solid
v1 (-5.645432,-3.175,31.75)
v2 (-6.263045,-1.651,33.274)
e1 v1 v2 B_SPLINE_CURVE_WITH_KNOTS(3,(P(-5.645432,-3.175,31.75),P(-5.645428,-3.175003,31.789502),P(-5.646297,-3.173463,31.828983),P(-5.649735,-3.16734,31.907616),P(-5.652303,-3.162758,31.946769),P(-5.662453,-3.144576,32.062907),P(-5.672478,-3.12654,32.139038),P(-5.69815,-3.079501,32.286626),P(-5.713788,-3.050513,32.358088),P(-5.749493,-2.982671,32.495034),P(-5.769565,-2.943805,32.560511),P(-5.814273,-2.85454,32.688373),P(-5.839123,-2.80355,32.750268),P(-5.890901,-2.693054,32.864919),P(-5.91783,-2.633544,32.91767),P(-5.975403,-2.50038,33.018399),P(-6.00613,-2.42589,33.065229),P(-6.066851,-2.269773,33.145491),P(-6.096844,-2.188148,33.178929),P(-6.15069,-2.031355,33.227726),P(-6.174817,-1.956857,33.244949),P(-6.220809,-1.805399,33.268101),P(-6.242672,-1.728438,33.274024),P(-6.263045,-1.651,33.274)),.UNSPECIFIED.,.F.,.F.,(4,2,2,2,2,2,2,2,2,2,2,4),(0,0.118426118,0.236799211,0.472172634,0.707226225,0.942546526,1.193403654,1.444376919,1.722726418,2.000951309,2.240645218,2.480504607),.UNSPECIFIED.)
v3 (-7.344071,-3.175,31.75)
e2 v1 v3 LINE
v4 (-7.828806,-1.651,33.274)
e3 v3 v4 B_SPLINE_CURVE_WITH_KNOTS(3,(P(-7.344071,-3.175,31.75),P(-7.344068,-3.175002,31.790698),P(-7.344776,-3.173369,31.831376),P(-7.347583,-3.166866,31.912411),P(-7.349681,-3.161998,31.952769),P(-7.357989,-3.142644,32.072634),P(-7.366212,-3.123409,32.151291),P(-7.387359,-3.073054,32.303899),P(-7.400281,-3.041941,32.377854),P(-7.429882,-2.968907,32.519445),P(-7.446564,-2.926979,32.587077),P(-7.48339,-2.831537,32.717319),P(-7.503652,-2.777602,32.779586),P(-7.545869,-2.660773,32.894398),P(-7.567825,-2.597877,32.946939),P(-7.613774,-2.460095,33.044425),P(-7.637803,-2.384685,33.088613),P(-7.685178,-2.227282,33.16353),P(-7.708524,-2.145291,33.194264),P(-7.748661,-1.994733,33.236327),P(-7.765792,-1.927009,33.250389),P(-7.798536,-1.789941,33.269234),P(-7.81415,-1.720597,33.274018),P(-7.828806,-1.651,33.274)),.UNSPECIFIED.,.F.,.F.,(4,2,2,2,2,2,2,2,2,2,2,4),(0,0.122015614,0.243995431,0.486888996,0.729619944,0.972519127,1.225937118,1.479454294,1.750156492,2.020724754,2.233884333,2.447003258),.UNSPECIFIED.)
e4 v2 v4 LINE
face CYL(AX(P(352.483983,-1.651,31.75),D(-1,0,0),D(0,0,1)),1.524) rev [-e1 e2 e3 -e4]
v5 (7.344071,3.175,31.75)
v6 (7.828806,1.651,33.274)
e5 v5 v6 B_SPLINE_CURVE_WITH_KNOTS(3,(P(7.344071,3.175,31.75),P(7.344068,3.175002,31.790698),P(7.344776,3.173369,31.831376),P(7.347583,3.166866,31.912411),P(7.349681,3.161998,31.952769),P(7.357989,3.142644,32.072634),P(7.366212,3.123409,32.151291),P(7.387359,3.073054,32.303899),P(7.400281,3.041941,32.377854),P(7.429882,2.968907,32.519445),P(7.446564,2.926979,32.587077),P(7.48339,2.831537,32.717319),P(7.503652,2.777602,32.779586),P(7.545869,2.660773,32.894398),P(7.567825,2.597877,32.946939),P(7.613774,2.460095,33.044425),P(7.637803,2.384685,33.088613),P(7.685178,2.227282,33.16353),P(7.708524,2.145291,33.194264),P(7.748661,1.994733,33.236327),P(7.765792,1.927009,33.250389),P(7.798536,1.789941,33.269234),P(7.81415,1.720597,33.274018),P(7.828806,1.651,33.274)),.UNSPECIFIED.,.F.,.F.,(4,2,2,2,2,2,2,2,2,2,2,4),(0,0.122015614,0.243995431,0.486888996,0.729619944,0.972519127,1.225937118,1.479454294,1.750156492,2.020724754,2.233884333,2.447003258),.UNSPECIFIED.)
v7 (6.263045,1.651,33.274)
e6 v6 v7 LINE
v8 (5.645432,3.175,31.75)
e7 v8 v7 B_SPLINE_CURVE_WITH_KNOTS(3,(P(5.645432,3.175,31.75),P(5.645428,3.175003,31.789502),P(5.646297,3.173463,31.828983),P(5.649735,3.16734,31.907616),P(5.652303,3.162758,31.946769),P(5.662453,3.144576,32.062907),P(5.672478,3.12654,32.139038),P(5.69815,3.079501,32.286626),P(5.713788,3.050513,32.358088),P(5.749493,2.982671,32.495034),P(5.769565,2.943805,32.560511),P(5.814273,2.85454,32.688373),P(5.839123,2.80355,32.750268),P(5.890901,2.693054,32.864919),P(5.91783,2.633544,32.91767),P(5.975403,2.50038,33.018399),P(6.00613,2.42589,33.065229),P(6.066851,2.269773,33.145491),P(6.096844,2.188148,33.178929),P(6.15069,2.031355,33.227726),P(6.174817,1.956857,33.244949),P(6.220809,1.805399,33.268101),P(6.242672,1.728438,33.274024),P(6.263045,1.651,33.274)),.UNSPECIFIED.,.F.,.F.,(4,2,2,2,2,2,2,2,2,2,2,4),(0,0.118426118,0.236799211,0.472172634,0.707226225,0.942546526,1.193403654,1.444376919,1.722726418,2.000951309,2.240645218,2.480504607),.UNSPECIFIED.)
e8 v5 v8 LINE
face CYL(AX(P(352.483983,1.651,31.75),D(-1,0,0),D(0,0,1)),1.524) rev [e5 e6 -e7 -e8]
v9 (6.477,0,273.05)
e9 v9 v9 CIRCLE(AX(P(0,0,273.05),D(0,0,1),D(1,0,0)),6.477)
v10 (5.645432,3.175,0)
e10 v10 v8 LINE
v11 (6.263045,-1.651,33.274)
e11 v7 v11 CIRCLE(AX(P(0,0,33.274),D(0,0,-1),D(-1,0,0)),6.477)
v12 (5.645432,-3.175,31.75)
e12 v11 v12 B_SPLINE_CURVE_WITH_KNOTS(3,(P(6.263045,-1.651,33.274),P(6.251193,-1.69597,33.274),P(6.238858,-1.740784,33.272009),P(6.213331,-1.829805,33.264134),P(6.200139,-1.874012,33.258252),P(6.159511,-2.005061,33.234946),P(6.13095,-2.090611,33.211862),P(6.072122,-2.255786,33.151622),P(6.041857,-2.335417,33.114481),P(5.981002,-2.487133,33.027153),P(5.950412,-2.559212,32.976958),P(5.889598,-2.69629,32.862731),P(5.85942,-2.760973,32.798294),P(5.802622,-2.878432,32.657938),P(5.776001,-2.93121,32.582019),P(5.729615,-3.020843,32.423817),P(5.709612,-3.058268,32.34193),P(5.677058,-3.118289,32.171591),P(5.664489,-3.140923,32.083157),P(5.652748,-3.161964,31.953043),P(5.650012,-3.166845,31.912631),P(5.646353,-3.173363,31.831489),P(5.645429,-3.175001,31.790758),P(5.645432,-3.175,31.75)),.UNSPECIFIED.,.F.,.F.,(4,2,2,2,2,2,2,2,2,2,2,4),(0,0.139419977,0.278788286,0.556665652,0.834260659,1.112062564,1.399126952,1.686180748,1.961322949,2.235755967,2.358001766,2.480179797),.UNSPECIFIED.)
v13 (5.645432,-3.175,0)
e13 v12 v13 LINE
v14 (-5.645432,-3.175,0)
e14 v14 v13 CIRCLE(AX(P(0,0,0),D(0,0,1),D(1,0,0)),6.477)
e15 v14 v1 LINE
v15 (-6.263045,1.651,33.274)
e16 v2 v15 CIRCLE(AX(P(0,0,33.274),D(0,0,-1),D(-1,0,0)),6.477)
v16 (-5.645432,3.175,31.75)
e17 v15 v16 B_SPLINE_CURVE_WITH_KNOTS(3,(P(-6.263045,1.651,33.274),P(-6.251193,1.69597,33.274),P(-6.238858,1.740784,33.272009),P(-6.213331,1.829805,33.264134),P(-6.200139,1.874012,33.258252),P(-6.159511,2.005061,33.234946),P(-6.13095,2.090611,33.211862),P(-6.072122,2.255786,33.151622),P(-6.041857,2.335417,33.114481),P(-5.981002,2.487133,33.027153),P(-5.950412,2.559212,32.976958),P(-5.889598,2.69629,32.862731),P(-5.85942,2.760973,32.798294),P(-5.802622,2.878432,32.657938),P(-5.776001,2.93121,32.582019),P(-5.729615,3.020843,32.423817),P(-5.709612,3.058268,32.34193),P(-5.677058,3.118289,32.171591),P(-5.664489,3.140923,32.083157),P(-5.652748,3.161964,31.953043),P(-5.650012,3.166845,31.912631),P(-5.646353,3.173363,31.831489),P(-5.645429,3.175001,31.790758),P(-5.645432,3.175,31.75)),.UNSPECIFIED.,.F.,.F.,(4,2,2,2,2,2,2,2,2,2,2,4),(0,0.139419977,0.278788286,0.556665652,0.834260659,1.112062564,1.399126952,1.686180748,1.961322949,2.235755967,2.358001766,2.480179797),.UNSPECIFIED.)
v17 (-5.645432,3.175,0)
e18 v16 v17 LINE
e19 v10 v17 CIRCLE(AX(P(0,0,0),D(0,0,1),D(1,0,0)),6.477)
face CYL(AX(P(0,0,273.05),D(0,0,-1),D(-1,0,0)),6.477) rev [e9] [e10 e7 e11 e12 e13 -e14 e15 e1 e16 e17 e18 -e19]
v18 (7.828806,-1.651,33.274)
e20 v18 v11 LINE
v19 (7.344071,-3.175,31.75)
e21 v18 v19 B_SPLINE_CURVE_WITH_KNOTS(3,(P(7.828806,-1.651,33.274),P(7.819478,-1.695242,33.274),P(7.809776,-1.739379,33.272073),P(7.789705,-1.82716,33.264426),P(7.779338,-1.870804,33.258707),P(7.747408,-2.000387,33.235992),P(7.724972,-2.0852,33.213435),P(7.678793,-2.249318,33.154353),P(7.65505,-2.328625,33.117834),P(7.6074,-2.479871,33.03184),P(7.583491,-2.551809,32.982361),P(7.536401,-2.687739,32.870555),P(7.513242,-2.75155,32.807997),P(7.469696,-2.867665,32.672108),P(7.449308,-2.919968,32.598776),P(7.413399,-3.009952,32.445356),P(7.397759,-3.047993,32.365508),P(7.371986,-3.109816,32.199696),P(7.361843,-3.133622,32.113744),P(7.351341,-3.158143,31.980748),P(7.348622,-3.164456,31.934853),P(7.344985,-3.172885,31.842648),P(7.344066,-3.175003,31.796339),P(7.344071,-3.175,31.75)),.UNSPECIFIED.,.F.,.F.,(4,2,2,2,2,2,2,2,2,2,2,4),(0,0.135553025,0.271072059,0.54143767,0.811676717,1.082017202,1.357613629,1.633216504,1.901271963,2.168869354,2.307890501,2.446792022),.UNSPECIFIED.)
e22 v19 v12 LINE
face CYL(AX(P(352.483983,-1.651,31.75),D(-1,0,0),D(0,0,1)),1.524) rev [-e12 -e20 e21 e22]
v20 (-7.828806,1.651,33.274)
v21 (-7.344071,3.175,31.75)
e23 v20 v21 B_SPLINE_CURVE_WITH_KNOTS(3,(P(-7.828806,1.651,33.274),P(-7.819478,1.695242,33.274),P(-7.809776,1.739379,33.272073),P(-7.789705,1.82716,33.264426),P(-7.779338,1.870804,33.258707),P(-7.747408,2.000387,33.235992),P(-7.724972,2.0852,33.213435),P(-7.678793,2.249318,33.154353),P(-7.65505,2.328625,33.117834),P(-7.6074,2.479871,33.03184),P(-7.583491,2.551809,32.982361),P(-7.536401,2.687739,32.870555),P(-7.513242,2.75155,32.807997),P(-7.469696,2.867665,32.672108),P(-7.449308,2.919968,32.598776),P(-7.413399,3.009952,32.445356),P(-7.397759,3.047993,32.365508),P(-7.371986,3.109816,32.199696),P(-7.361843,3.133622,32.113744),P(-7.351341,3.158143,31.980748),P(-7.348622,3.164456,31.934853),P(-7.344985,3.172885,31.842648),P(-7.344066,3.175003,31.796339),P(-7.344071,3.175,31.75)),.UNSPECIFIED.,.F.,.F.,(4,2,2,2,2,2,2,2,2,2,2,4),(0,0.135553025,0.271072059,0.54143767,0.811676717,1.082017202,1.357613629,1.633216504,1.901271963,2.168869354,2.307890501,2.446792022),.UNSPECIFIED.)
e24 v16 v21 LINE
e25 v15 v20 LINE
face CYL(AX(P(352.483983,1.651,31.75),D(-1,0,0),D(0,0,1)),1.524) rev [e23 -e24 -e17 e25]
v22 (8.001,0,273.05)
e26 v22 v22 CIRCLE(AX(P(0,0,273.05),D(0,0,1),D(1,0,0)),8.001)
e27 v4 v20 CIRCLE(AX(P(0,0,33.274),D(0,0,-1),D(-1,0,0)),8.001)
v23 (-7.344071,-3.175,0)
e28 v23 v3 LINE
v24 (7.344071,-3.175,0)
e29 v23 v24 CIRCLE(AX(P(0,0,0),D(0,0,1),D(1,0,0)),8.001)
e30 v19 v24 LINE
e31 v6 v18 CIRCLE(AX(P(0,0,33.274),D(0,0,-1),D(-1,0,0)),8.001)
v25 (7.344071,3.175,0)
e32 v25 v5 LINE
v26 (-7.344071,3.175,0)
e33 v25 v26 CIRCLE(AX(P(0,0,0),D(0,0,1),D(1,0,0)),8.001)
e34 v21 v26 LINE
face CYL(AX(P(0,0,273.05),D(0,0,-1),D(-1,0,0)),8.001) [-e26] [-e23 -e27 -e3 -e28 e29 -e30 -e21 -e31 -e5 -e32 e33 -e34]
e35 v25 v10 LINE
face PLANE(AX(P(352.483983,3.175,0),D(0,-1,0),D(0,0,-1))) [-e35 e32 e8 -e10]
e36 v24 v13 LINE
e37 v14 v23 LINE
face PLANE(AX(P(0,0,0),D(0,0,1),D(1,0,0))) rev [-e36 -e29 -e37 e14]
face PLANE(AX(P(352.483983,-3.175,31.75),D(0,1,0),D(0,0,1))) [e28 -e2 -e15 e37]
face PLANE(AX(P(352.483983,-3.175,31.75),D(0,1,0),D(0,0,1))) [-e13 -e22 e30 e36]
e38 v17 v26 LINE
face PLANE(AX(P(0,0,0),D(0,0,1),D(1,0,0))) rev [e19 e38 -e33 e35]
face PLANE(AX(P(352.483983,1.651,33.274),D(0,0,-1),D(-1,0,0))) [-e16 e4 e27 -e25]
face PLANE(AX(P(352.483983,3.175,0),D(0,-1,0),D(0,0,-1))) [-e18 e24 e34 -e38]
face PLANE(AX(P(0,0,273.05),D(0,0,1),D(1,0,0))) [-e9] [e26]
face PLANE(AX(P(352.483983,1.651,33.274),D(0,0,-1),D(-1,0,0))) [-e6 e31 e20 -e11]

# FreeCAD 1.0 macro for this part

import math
import FreeCAD as App
import Part
import Sketcher
from FreeCAD import Vector
Q = App.Units.Quantity

doc = App.newDocument("Part")
body = doc.addObject("PartDesign::Body", "Body")

# Sketch on XY plane
sketch1 = doc.addObject("Sketcher::SketchObject", "Sketch")
body.addObject(sketch1)
sketch1.AttachmentSupport = (doc.XY_Plane, [""])
sketch1.MapMode = "FlatFace"
sketch1.addGeometry(Part.Circle(Vector(0, 0, 0), Vector(0, 0, 1), 8), False)
sketch1.addGeometry(Part.Circle(Vector(0, 0, 0), Vector(0, 0, 1), 6), False)
sketch1.addConstraint(Sketcher.Constraint("Coincident", 0, 3, -1, 1))
sketch1.addConstraint(Sketcher.Constraint("Coincident", 1, 3, -1, 1))
sketch1.addConstraint(Sketcher.Constraint("Diameter", 0, Q("0.63 in")))
sketch1.addConstraint(Sketcher.Constraint("Diameter", 1, Q("0.51 in")))
pad1 = doc.addObject("PartDesign::Pad", "Pad")
body.addObject(pad1)
pad1.Profile = sketch1
pad1.Length = Q("10.75 in")

# Sketch on YZ plane
sketch2 = doc.addObject("Sketcher::SketchObject", "Sketch001")
body.addObject(sketch2)
sketch2.AttachmentSupport = (doc.YZ_Plane, [""])
sketch2.MapMode = "FlatFace"
sketch2.addGeometry(Part.ArcOfCircle(Part.Circle(Vector(1.7, 31.8, 0), Vector(0, 0, 1), 1.5), math.radians(0), math.radians(90)), False)
sketch2.addGeometry(Part.LineSegment(Vector(1.7, 33.3, 0), Vector(-1.7, 33.3, 0)), False)
sketch2.addGeometry(Part.ArcOfCircle(Part.Circle(Vector(-1.7, 31.8, 0), Vector(0, 0, 1), 1.5), math.radians(90), math.radians(180)), False)
sketch2.addGeometry(Part.LineSegment(Vector(-3.2, 31.8, 0), Vector(-3.2, -1669.7, 0)), False)
sketch2.addGeometry(Part.LineSegment(Vector(-3.2, -1669.7, 0), Vector(3.2, -1669.7, 0)), False)
sketch2.addGeometry(Part.LineSegment(Vector(3.2, -1669.7, 0), Vector(3.2, 31.8, 0)), False)
sketch2.addConstraint(Sketcher.Constraint("Tangent", 0, 2, 1, 1))
sketch2.addConstraint(Sketcher.Constraint("Tangent", 1, 2, 2, 1))
sketch2.addConstraint(Sketcher.Constraint("Tangent", 2, 2, 3, 1))
sketch2.addConstraint(Sketcher.Constraint("Coincident", 3, 2, 4, 1))
sketch2.addConstraint(Sketcher.Constraint("Coincident", 4, 2, 5, 1))
sketch2.addConstraint(Sketcher.Constraint("Tangent", 5, 2, 0, 1))
sketch2.addConstraint(Sketcher.Constraint("Horizontal", 1))
sketch2.addConstraint(Sketcher.Constraint("Vertical", 3))
sketch2.addConstraint(Sketcher.Constraint("Horizontal", 4))
sketch2.addConstraint(Sketcher.Constraint("Vertical", 5))
sketch2.addConstraint(Sketcher.Constraint("Equal", 0, 2))
sketch2.addConstraint(Sketcher.Constraint("Radius", 0, Q("0.06 in")))
sketch2.addConstraint(Sketcher.Constraint("DistanceX", 1, 2, 1, 1, Q("0.13 in")))
sketch2.addConstraint(Sketcher.Constraint("DistanceY", -1, 1, 0, 3, Q("1.25 in")))
sketch2.addConstraint(Sketcher.Constraint("DistanceX", -1, 1, 0, 3, Q("0.065 in")))
sketch2.addConstraint(Sketcher.Constraint("DistanceY", 3, 2, 3, 1, Q("1701.421735 mm")))
pocket1 = doc.addObject("PartDesign::Pocket", "Pocket")
body.addObject(pocket1)
pocket1.Profile = sketch2
pocket1.Type = "ThroughAll"
pocket1.Midplane = True

doc.recompute()
